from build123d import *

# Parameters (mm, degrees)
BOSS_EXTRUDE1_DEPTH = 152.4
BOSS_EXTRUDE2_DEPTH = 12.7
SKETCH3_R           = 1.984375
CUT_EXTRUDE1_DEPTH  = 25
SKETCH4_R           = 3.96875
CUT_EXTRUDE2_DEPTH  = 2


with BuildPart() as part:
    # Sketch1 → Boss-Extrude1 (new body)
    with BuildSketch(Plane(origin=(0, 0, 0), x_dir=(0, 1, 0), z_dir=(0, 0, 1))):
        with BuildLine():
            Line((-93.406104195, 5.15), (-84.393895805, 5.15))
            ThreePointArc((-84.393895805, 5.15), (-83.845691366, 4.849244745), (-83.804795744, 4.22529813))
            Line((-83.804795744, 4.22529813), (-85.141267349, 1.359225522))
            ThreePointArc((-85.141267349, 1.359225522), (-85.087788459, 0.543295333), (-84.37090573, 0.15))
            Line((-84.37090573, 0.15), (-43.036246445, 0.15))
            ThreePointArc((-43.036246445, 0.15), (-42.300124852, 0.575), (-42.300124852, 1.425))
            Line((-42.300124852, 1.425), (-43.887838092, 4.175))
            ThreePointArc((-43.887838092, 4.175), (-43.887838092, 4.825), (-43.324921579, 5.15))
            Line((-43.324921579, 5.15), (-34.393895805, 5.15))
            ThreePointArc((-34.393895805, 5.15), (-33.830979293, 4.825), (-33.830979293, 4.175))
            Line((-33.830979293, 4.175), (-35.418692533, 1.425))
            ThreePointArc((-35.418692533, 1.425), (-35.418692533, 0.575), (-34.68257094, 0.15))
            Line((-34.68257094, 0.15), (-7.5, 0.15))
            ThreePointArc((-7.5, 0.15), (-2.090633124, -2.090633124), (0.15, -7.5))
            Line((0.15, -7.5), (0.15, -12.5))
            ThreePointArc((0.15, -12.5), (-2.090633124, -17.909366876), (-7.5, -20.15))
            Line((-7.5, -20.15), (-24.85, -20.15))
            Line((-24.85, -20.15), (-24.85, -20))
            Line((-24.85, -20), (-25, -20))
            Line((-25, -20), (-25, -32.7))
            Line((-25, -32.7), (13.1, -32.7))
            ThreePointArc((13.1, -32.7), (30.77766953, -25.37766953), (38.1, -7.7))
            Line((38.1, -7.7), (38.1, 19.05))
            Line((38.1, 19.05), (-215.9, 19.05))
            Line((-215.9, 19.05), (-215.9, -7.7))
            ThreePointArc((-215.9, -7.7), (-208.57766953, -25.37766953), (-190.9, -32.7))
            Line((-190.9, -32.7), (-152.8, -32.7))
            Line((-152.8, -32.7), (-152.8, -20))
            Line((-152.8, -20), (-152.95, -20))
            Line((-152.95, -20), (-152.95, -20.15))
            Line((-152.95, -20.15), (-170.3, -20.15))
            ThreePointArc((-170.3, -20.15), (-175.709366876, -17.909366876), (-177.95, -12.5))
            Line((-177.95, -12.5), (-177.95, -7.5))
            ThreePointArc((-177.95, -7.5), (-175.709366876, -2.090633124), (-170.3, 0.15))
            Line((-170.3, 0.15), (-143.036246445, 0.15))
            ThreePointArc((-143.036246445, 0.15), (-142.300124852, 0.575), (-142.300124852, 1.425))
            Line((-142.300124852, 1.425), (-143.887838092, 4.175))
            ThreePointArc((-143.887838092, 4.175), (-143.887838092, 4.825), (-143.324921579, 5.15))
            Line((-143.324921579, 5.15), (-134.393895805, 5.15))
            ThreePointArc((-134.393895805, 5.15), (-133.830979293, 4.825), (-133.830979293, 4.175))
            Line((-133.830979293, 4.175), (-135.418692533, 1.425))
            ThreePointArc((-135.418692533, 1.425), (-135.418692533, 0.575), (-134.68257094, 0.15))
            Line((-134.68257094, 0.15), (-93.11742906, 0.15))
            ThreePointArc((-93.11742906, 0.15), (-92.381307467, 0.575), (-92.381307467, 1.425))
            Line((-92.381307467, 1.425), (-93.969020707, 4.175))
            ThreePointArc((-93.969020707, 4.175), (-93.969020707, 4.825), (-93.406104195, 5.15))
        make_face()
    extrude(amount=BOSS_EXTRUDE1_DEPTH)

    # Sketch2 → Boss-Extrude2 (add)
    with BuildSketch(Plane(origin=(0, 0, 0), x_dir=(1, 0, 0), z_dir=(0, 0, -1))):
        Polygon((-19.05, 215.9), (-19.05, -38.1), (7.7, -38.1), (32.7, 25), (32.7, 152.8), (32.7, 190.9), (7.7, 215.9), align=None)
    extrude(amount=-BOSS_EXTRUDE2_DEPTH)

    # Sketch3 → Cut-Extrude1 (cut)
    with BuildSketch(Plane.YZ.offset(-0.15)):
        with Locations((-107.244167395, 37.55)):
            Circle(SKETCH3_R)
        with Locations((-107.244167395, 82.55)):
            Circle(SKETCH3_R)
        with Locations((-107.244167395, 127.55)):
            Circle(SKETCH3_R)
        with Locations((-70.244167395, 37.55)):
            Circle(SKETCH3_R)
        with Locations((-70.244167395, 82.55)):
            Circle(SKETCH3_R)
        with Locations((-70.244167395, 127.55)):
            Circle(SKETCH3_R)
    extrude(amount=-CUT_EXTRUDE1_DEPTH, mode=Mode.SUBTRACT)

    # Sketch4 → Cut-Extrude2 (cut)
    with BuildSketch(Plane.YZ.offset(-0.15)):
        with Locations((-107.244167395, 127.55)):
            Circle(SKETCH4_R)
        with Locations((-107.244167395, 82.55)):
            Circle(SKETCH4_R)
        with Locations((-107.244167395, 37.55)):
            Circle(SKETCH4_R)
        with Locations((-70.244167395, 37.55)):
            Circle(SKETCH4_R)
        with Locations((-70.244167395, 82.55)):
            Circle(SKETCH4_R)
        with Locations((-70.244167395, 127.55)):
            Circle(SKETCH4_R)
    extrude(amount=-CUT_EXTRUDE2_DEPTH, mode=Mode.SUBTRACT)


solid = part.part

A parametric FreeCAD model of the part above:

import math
import FreeCAD as App
import Part
import Sketcher
Q = App.Units.Quantity

doc = App.newDocument("Part")
params = doc.addObject("Spreadsheet::Sheet", "Params")
for row, (alias, value) in enumerate([
    ("sketch1_radius", "25 mm"),
    ("sketch1_width", "5 mm"),
    ("sketch1_height", "254 mm"),
    ("sketch1_radius2", "0.65 mm"),
    ("sketch1_radius3", "0.85 mm"),
    ("pad1_length", "152.4 mm"),
    ("sketch2_height", "254 mm"),
    ("sketch2_height2", "165.9 mm"),
    ("sketch2_width", "26.75 mm"),
    ("pad2_length", "12.7 mm"),
    ("pocket1_length", "25 mm"),
    ("pocket2_length", "2 mm"),
], start=1):
    params.set(f"A{row}", alias)
    params.set(f"B{row}", "=" + value)
    params.setAlias(f"B{row}", alias)

body = doc.addObject("PartDesign::Body", "Body")

# Sketch on XY plane
sketch1 = body.newObject("Sketcher::SketchObject", "Sketch")
sketch1.AttachmentSupport = (doc.getObject("XY_Plane"), [""])
sketch1.MapMode = "FlatFace"
sketch1.addGeometry([
    Part.LineSegment(App.Vector(-5.15, -93.406104, 0), App.Vector(-5.15, -84.393896, 0)),  # 0
    Part.ArcOfCircle(Part.Circle(App.Vector(-4.5, -84.393896, 0), App.Vector(0, 0, 1), 0.65), math.radians(65), math.radians(180)),  # 1
    Part.LineSegment(App.Vector(-4.225298, -83.804796, 0), App.Vector(-1.359226, -85.141267, 0)),  # 2
    Part.ArcOfCircle(Part.Circle(App.Vector(-1, -84.370906, 0), App.Vector(0, 0, 1), 0.85), math.radians(-115), math.radians(0)),  # 3
    Part.LineSegment(App.Vector(-0.15, -84.370906, 0), App.Vector(-0.15, -43.036246, 0)),  # 4
    Part.ArcOfCircle(Part.Circle(App.Vector(-1, -43.036246, 0), App.Vector(0, 0, 1), 0.85), math.radians(0), math.radians(120)),  # 5
    Part.LineSegment(App.Vector(-1.425, -42.300125, 0), App.Vector(-4.175, -43.887838, 0)),  # 6
    Part.ArcOfCircle(Part.Circle(App.Vector(-4.5, -43.324922, 0), App.Vector(0, 0, 1), 0.65), math.radians(180), math.radians(300)),  # 7
    Part.LineSegment(App.Vector(-5.15, -43.324922, 0), App.Vector(-5.15, -34.393896, 0)),  # 8
    Part.ArcOfCircle(Part.Circle(App.Vector(-4.5, -34.393896, 0), App.Vector(0, 0, 1), 0.65), math.radians(60), math.radians(180)),  # 9
    Part.LineSegment(App.Vector(-4.175, -33.830979, 0), App.Vector(-1.425, -35.418693, 0)),  # 10
    Part.ArcOfCircle(Part.Circle(App.Vector(-1, -34.682571, 0), App.Vector(0, 0, 1), 0.85), math.radians(-120), math.radians(0)),  # 11
    Part.LineSegment(App.Vector(-0.15, -34.682571, 0), App.Vector(-0.15, -7.5, 0)),  # 12
    Part.ArcOfCircle(Part.Circle(App.Vector(7.5, -7.5, 0), App.Vector(0, 0, 1), 7.65), math.radians(90), math.radians(180)),  # 13
    Part.LineSegment(App.Vector(7.5, 0.15, 0), App.Vector(12.5, 0.15, 0)),  # 14
    Part.ArcOfCircle(Part.Circle(App.Vector(12.5, -7.5, 0), App.Vector(0, 0, 1), 7.65), math.radians(0), math.radians(90)),  # 15
    Part.LineSegment(App.Vector(20.15, -7.5, 0), App.Vector(20.15, -24.85, 0)),  # 16
    Part.LineSegment(App.Vector(20.15, -24.85, 0), App.Vector(20, -24.85, 0)),  # 17
    Part.LineSegment(App.Vector(20, -24.85, 0), App.Vector(20, -25, 0)),  # 18
    Part.LineSegment(App.Vector(20, -25, 0), App.Vector(32.7, -25, 0)),  # 19
    Part.LineSegment(App.Vector(32.7, -25, 0), App.Vector(32.7, 13.1, 0)),  # 20
    Part.ArcOfCircle(Part.Circle(App.Vector(7.7, 13.1, 0), App.Vector(0, 0, 1), 25), math.radians(0), math.radians(90)),  # 21
    Part.LineSegment(App.Vector(7.7, 38.1, 0), App.Vector(-19.05, 38.1, 0)),  # 22
    Part.LineSegment(App.Vector(-19.05, 38.1, 0), App.Vector(-19.05, -215.9, 0)),  # 23
    Part.LineSegment(App.Vector(-19.05, -215.9, 0), App.Vector(7.7, -215.9, 0)),  # 24
    Part.ArcOfCircle(Part.Circle(App.Vector(7.7, -190.9, 0), App.Vector(0, 0, 1), 25), math.radians(-90), math.radians(0)),  # 25
    Part.LineSegment(App.Vector(32.7, -190.9, 0), App.Vector(32.7, -152.8, 0)),  # 26
    Part.LineSegment(App.Vector(32.7, -152.8, 0), App.Vector(20, -152.8, 0)),  # 27
    Part.LineSegment(App.Vector(20, -152.8, 0), App.Vector(20, -152.95, 0)),  # 28
    Part.LineSegment(App.Vector(20, -152.95, 0), App.Vector(20.15, -152.95, 0)),  # 29
    Part.LineSegment(App.Vector(20.15, -152.95, 0), App.Vector(20.15, -170.3, 0)),  # 30
    Part.ArcOfCircle(Part.Circle(App.Vector(12.5, -170.3, 0), App.Vector(0, 0, 1), 7.65), math.radians(-90), math.radians(0)),  # 31
    Part.LineSegment(App.Vector(12.5, -177.95, 0), App.Vector(7.5, -177.95, 0)),  # 32
    Part.ArcOfCircle(Part.Circle(App.Vector(7.5, -170.3, 0), App.Vector(0, 0, 1), 7.65), math.radians(180), math.radians(270)),  # 33
    Part.LineSegment(App.Vector(-0.15, -170.3, 0), App.Vector(-0.15, -143.036246, 0)),  # 34
    Part.ArcOfCircle(Part.Circle(App.Vector(-1, -143.036246, 0), App.Vector(0, 0, 1), 0.85), math.radians(0), math.radians(120)),  # 35
    Part.LineSegment(App.Vector(-1.425, -142.300125, 0), App.Vector(-4.175, -143.887838, 0)),  # 36
    Part.ArcOfCircle(Part.Circle(App.Vector(-4.5, -143.324922, 0), App.Vector(0, 0, 1), 0.65), math.radians(180), math.radians(300)),  # 37
    Part.LineSegment(App.Vector(-5.15, -143.324922, 0), App.Vector(-5.15, -134.393896, 0)),  # 38
    Part.ArcOfCircle(Part.Circle(App.Vector(-4.5, -134.393896, 0), App.Vector(0, 0, 1), 0.65), math.radians(60), math.radians(180)),  # 39
    Part.LineSegment(App.Vector(-4.175, -133.830979, 0), App.Vector(-1.425, -135.418693, 0)),  # 40
    Part.ArcOfCircle(Part.Circle(App.Vector(-1, -134.682571, 0), App.Vector(0, 0, 1), 0.85), math.radians(-120), math.radians(0)),  # 41
    Part.LineSegment(App.Vector(-0.15, -134.682571, 0), App.Vector(-0.15, -93.117429, 0)),  # 42
    Part.ArcOfCircle(Part.Circle(App.Vector(-1, -93.117429, 0), App.Vector(0, 0, 1), 0.85), math.radians(0), math.radians(120)),  # 43
    Part.LineSegment(App.Vector(-1.425, -92.381307, 0), App.Vector(-4.175, -93.969021, 0)),  # 44
    Part.ArcOfCircle(Part.Circle(App.Vector(-4.5, -93.406104, 0), App.Vector(0, 0, 1), 0.65), math.radians(180), math.radians(300)),  # 45
], False)
sketch1.addConstraint([
    Sketcher.Constraint("Tangent", 0, 2, 1, 2),
    Sketcher.Constraint("Tangent", 1, 1, 2, 1),
    Sketcher.Constraint("Tangent", 2, 2, 3, 1),
    Sketcher.Constraint("Tangent", 3, 2, 4, 1),
    Sketcher.Constraint("Tangent", 4, 2, 5, 1),
    Sketcher.Constraint("Tangent", 5, 2, 6, 1),
    Sketcher.Constraint("Tangent", 6, 2, 7, 2),
    Sketcher.Constraint("Tangent", 7, 1, 8, 1),
    Sketcher.Constraint("Tangent", 8, 2, 9, 2),
    Sketcher.Constraint("Tangent", 9, 1, 10, 1),
    Sketcher.Constraint("Tangent", 10, 2, 11, 1),
    Sketcher.Constraint("Tangent", 11, 2, 12, 1),
    Sketcher.Constraint("Tangent", 12, 2, 13, 2),
    Sketcher.Constraint("Tangent", 13, 1, 14, 1),
    Sketcher.Constraint("Tangent", 14, 2, 15, 2),
    Sketcher.Constraint("Tangent", 15, 1, 16, 1),
    Sketcher.Constraint("Coincident", 16, 2, 17, 1),
    Sketcher.Constraint("Coincident", 17, 2, 18, 1),
    Sketcher.Constraint("Coincident", 18, 2, 19, 1),
    Sketcher.Constraint("Coincident", 19, 2, 20, 1),
    Sketcher.Constraint("Tangent", 20, 2, 21, 1),
    Sketcher.Constraint("Tangent", 21, 2, 22, 1),
    Sketcher.Constraint("Coincident", 22, 2, 23, 1),
    Sketcher.Constraint("Coincident", 23, 2, 24, 1),
    Sketcher.Constraint("Tangent", 24, 2, 25, 1),
    Sketcher.Constraint("Tangent", 25, 2, 26, 1),
    Sketcher.Constraint("Coincident", 26, 2, 27, 1),
    Sketcher.Constraint("Coincident", 27, 2, 28, 1),
    Sketcher.Constraint("Coincident", 28, 2, 29, 1),
    Sketcher.Constraint("Coincident", 29, 2, 30, 1),
    Sketcher.Constraint("Tangent", 30, 2, 31, 2),
    Sketcher.Constraint("Tangent", 31, 1, 32, 1),
    Sketcher.Constraint("Tangent", 32, 2, 33, 2),
    Sketcher.Constraint("Tangent", 33, 1, 34, 1),
    Sketcher.Constraint("Tangent", 34, 2, 35, 1),
    Sketcher.Constraint("Tangent", 35, 2, 36, 1),
    Sketcher.Constraint("Tangent", 36, 2, 37, 2),
    Sketcher.Constraint("Tangent", 37, 1, 38, 1),
    Sketcher.Constraint("Tangent", 38, 2, 39, 2),
    Sketcher.Constraint("Tangent", 39, 1, 40, 1),
    Sketcher.Constraint("Tangent", 40, 2, 41, 1),
    Sketcher.Constraint("Tangent", 41, 2, 42, 1),
    Sketcher.Constraint("Tangent", 42, 2, 43, 1),
    Sketcher.Constraint("Tangent", 43, 2, 44, 1),
    Sketcher.Constraint("Tangent", 44, 2, 45, 2),
    Sketcher.Constraint("Tangent", 45, 1, 0, 1),
    Sketcher.Constraint("Vertical", 0),
    Sketcher.Constraint("Vertical", 4),
    Sketcher.Constraint("Vertical", 8),
    Sketcher.Constraint("Vertical", 12),
    Sketcher.Constraint("Horizontal", 14),
    Sketcher.Constraint("Vertical", 16),
    Sketcher.Constraint("Horizontal", 17),
    Sketcher.Constraint("Vertical", 18),
    Sketcher.Constraint("Horizontal", 19),
    Sketcher.Constraint("Vertical", 20),
    Sketcher.Constraint("Horizontal", 22),
    Sketcher.Constraint("Vertical", 23),
    Sketcher.Constraint("Horizontal", 24),
    Sketcher.Constraint("Vertical", 26),
    Sketcher.Constraint("Horizontal", 27),
    Sketcher.Constraint("Vertical", 28),
    Sketcher.Constraint("Horizontal", 29),
    Sketcher.Constraint("Vertical", 30),
    Sketcher.Constraint("Horizontal", 32),
    Sketcher.Constraint("Vertical", 34),
    Sketcher.Constraint("Vertical", 38),
    Sketcher.Constraint("Vertical", 42),
    Sketcher.Constraint("Equal", 3, 5),
    Sketcher.Constraint("Equal", 1, 7),
    Sketcher.Constraint("Equal", 7, 9),
    Sketcher.Constraint("Equal", 5, 11),
    Sketcher.Constraint("Equal", 13, 15),
    Sketcher.Constraint("Equal", 21, 25),
    Sketcher.Constraint("Equal", 15, 31),
    Sketcher.Constraint("Equal", 31, 33),
    Sketcher.Constraint("Equal", 11, 35),
    Sketcher.Constraint("Equal", 9, 37),
    Sketcher.Constraint("Equal", 37, 39),
    Sketcher.Constraint("Equal", 35, 41),
    Sketcher.Constraint("Equal", 41, 43),
    Sketcher.Constraint("Equal", 39, 45),
    Sketcher.Constraint("Parallel", 6, 36),
    Sketcher.Constraint("Parallel", 10, 40),
    Sketcher.Constraint("Parallel", 36, 44),
    Sketcher.Constraint("Vertical", 1, 3, 7, 3),
    Sketcher.Constraint("Vertical", 5, 3, 11, 3),
    Sketcher.Constraint("Vertical", 21, 3, 25, 3),
    Sketcher.Constraint("Vertical", 15, 3, 31, 3),
    Sketcher.Constraint("Vertical", 13, 3, 33, 3),
    Sketcher.Constraint("Vertical", 9, 3, 37, 3),
    Sketcher.Constraint("Vertical", 35, 3, 41, 3),
    Sketcher.Constraint("Vertical", 6, 2, 9, 1),
    Sketcher.Constraint("Vertical", 18, 2, 27, 2),
    Sketcher.Constraint("Equal", 29, 18),
    Sketcher.Constraint("Equal", 20, 26),
    Sketcher.Constraint("Equal", 18, 28),
    Sketcher.Constraint("Equal", 16, 30),
    Sketcher.Constraint("Equal", 8, 38),
    Sketcher.Constraint("Radius", 21, Q("25 mm")),
    Sketcher.Constraint("DistanceX", 14, 1, 14, 2, Q("5 mm")),
    Sketcher.Constraint("DistanceY", 23, 2, 23, 1, Q("254 mm")),
    Sketcher.Constraint("Angle", 2, Q("-25 deg")),
    Sketcher.Constraint("Angle", 6, Q("-150 deg")),
    Sketcher.Constraint("Radius", 1, Q("0.65 mm")),
    Sketcher.Constraint("Radius", 3, Q("0.85 mm")),
    Sketcher.Constraint("Radius", 13, Q("7.65 mm")),
    Sketcher.Constraint("DistanceX", 19, 1, 19, 2, Q("12.7 mm")),
    Sketcher.Constraint("DistanceY", 20, 1, 20, 2, Q("38.1 mm")),
    Sketcher.Constraint("DistanceX", 3, 3, -1, 1, Q("1 mm")),
    Sketcher.Constraint("DistanceX", -1, 1, 17, 2, Q("20 mm")),
    Sketcher.Constraint("DistanceY", 18, 2, -1, 1, Q("25 mm")),
    Sketcher.Constraint("DistanceX", 22, 2, 22, 1, Q("26.75 mm")),
    Sketcher.Constraint("DistanceY", 16, 2, 16, 1, Q("17.35 mm")),
    Sketcher.Constraint("DistanceX", 1, 3, -1, 1, Q("4.5 mm")),
    Sketcher.Constraint("DistanceY", 0, 1, 0, 2, Q("9.012208 mm")),
    Sketcher.Constraint("DistanceY", 4, 1, 4, 2, Q("41.334659 mm")),
    Sketcher.Constraint("DistanceY", 12, 1, 12, 2, Q("27.182571 mm")),
    Sketcher.Constraint("DistanceY", 42, 1, 42, 2, Q("41.565142 mm")),
    Sketcher.Constraint("DistanceY", 8, 1, 8, 2, Q("8.931026 mm")),
])
sketch1.setExpression("Constraints[99]", "Params.sketch1_radius")
sketch1.setExpression("Constraints[100]", "Params.sketch1_width")
sketch1.setExpression("Constraints[101]", "Params.sketch1_height")
sketch1.setExpression("Constraints[104]", "Params.sketch1_radius2")
sketch1.setExpression("Constraints[105]", "Params.sketch1_radius3")
pad1 = body.newObject("PartDesign::Pad", "Pad")
pad1.Profile = sketch1
pad1.setExpression("Length", "Params.pad1_length")

# Sketch on XY plane
sketch2 = body.newObject("Sketcher::SketchObject", "Sketch001")
sketch2.AttachmentSupport = (doc.getObject("XY_Plane"), [""])
sketch2.MapMode = "FlatFace"
sketch2.addGeometry([
    Part.LineSegment(App.Vector(-19.05, -215.9, 0), App.Vector(-19.05, 38.1, 0)),  # 0
    Part.LineSegment(App.Vector(-19.05, 38.1, 0), App.Vector(7.7, 38.1, 0)),  # 1
    Part.LineSegment(App.Vector(7.7, 38.1, 0), App.Vector(32.7, -25, 0)),  # 2
    Part.LineSegment(App.Vector(32.7, -25, 0), App.Vector(32.7, -190.9, 0)),  # 3
    Part.LineSegment(App.Vector(32.7, -190.9, 0), App.Vector(7.7, -215.9, 0)),  # 4
    Part.LineSegment(App.Vector(7.7, -215.9, 0), App.Vector(-19.05, -215.9, 0)),  # 5
], False)
sketch2.addConstraint([
    Sketcher.Constraint("Coincident", 0, 2, 1, 1),
    Sketcher.Constraint("Coincident", 1, 2, 2, 1),
    Sketcher.Constraint("Coincident", 2, 2, 3, 1),
    Sketcher.Constraint("Coincident", 3, 2, 4, 1),
    Sketcher.Constraint("Coincident", 4, 2, 5, 1),
    Sketcher.Constraint("Coincident", 5, 2, 0, 1),
    Sketcher.Constraint("Vertical", 0),
    Sketcher.Constraint("Horizontal", 1),
    Sketcher.Constraint("Vertical", 3),
    Sketcher.Constraint("Horizontal", 5),
    Sketcher.Constraint("Vertical", 1, 2, 4, 2),
    Sketcher.Constraint("DistanceY", 0, 1, 0, 2, Q("254 mm")),
    Sketcher.Constraint("Angle", 4, Q("-135 deg")),
    Sketcher.Constraint("DistanceY", 3, 2, 3, 1, Q("165.9 mm")),
    Sketcher.Constraint("DistanceY", 2, 2, -1, 1, Q("25 mm")),
    Sketcher.Constraint("DistanceX", 1, 2, 2, 2, Q("25 mm")),
    Sketcher.Constraint("DistanceX", 1, 1, 1, 2, Q("26.75 mm")),
    Sketcher.Constraint("DistanceX", -1, 1, 1, 2, Q("7.7 mm")),
])
sketch2.setExpression("Constraints[11]", "Params.sketch2_height")
sketch2.setExpression("Constraints[13]", "Params.sketch2_height2")
sketch2.setExpression("Constraints[16]", "Params.sketch2_width")
pad2 = body.newObject("PartDesign::Pad", "Pad001")
pad2.Profile = sketch2
pad2.setExpression("Length", "Params.pad2_length")

# Sketch on YZ plane
sketch3 = body.newObject("Sketcher::SketchObject", "Sketch002")
sketch3.AttachmentSupport = (doc.getObject("YZ_Plane"), [""])
sketch3.MapMode = "FlatFace"
sketch3.AttachmentOffset = App.Placement(App.Vector(0, 0, -0.15), App.Rotation())
sketch3.addGeometry([
    Part.Circle(App.Vector(-107.244167, 37.55, 0), App.Vector(0, 0, 1), 1.984375),  # 0
    Part.Circle(App.Vector(-107.244167, 82.55, 0), App.Vector(0, 0, 1), 1.984375),  # 1
    Part.Circle(App.Vector(-107.244167, 127.55, 0), App.Vector(0, 0, 1), 1.984375),  # 2
    Part.Circle(App.Vector(-70.244167, 37.55, 0), App.Vector(0, 0, 1), 1.984375),  # 3
    Part.Circle(App.Vector(-70.244167, 82.55, 0), App.Vector(0, 0, 1), 1.984375),  # 4
    Part.Circle(App.Vector(-70.244167, 127.55, 0), App.Vector(0, 0, 1), 1.984375),  # 5
], False)
sketch3.addConstraint([
    Sketcher.Constraint("Equal", 0, 1),
    Sketcher.Constraint("Equal", 1, 2),
    Sketcher.Constraint("Equal", 2, 3),
    Sketcher.Constraint("Equal", 3, 4),
    Sketcher.Constraint("Equal", 4, 5),
    Sketcher.Constraint("Horizontal", 0, 3, 3, 3),
    Sketcher.Constraint("Horizontal", 1, 3, 4, 3),
    Sketcher.Constraint("Horizontal", 2, 3, 5, 3),
    Sketcher.Constraint("Vertical", 0, 3, 1, 3),
    Sketcher.Constraint("Vertical", 1, 3, 2, 3),
    Sketcher.Constraint("Vertical", 3, 3, 4, 3),
    Sketcher.Constraint("Vertical", 4, 3, 5, 3),
    Sketcher.Constraint("DistanceY", 0, 3, 1, 3, Q("45 mm")),
    Sketcher.Constraint("DistanceY", 1, 3, 2, 3, Q("45 mm")),
    Sketcher.Constraint("DistanceX", 0, 3, 3, 3, Q("37 mm")),
    Sketcher.Constraint("Diameter", 0, Q("3.96875 mm")),
    Sketcher.Constraint("DistanceY", -1, 1, 0, 3, Q("37.55 mm")),
    Sketcher.Constraint("DistanceX", 0, 3, -1, 1, Q("107.244167 mm")),
])
pocket1 = body.newObject("PartDesign::Pocket", "Pocket")
pocket1.Profile = sketch3
pocket1.setExpression("Length", "Params.pocket1_length")

# Sketch on YZ plane
sketch4 = body.newObject("Sketcher::SketchObject", "Sketch003")
sketch4.AttachmentSupport = (doc.getObject("YZ_Plane"), [""])
sketch4.MapMode = "FlatFace"
sketch4.AttachmentOffset = App.Placement(App.Vector(0, 0, -0.15), App.Rotation())
sketch4.addGeometry([
    Part.Circle(App.Vector(-107.244167, 127.55, 0), App.Vector(0, 0, 1), 3.96875),  # 0
    Part.Circle(App.Vector(-107.244167, 82.55, 0), App.Vector(0, 0, 1), 3.96875),  # 1
    Part.Circle(App.Vector(-107.244167, 37.55, 0), App.Vector(0, 0, 1), 3.96875),  # 2
    Part.Circle(App.Vector(-70.244167, 37.55, 0), App.Vector(0, 0, 1), 3.96875),  # 3
    Part.Circle(App.Vector(-70.244167, 82.55, 0), App.Vector(0, 0, 1), 3.96875),  # 4
    Part.Circle(App.Vector(-70.244167, 127.55, 0), App.Vector(0, 0, 1), 3.96875),  # 5
], False)
sketch4.addConstraint([
    Sketcher.Constraint("Equal", 0, 1),
    Sketcher.Constraint("Equal", 1, 2),
    Sketcher.Constraint("Equal", 2, 3),
    Sketcher.Constraint("Equal", 3, 4),
    Sketcher.Constraint("Equal", 4, 5),
    Sketcher.Constraint("Horizontal", 2, 3, 3, 3),
    Sketcher.Constraint("Horizontal", 1, 3, 4, 3),
    Sketcher.Constraint("Horizontal", 0, 3, 5, 3),
    Sketcher.Constraint("Vertical", 0, 3, 1, 3),
    Sketcher.Constraint("Vertical", 1, 3, 2, 3),
    Sketcher.Constraint("Vertical", 3, 3, 4, 3),
    Sketcher.Constraint("Vertical", 4, 3, 5, 3),
    Sketcher.Constraint("DistanceY", 1, 3, 0, 3, Q("45 mm")),
    Sketcher.Constraint("DistanceY", 2, 3, 1, 3, Q("45 mm")),
    Sketcher.Constraint("DistanceX", 2, 3, 3, 3, Q("37 mm")),
    Sketcher.Constraint("Diameter", 0, Q("7.9375 mm")),
    Sketcher.Constraint("DistanceY", -1, 1, 0, 3, Q("127.55 mm")),
    Sketcher.Constraint("DistanceX", 0, 3, -1, 1, Q("107.244167 mm")),
])
pocket2 = body.newObject("PartDesign::Pocket", "Pocket001")
pocket2.Profile = sketch4
pocket2.setExpression("Length", "Params.pocket2_length")

doc.recompute()
